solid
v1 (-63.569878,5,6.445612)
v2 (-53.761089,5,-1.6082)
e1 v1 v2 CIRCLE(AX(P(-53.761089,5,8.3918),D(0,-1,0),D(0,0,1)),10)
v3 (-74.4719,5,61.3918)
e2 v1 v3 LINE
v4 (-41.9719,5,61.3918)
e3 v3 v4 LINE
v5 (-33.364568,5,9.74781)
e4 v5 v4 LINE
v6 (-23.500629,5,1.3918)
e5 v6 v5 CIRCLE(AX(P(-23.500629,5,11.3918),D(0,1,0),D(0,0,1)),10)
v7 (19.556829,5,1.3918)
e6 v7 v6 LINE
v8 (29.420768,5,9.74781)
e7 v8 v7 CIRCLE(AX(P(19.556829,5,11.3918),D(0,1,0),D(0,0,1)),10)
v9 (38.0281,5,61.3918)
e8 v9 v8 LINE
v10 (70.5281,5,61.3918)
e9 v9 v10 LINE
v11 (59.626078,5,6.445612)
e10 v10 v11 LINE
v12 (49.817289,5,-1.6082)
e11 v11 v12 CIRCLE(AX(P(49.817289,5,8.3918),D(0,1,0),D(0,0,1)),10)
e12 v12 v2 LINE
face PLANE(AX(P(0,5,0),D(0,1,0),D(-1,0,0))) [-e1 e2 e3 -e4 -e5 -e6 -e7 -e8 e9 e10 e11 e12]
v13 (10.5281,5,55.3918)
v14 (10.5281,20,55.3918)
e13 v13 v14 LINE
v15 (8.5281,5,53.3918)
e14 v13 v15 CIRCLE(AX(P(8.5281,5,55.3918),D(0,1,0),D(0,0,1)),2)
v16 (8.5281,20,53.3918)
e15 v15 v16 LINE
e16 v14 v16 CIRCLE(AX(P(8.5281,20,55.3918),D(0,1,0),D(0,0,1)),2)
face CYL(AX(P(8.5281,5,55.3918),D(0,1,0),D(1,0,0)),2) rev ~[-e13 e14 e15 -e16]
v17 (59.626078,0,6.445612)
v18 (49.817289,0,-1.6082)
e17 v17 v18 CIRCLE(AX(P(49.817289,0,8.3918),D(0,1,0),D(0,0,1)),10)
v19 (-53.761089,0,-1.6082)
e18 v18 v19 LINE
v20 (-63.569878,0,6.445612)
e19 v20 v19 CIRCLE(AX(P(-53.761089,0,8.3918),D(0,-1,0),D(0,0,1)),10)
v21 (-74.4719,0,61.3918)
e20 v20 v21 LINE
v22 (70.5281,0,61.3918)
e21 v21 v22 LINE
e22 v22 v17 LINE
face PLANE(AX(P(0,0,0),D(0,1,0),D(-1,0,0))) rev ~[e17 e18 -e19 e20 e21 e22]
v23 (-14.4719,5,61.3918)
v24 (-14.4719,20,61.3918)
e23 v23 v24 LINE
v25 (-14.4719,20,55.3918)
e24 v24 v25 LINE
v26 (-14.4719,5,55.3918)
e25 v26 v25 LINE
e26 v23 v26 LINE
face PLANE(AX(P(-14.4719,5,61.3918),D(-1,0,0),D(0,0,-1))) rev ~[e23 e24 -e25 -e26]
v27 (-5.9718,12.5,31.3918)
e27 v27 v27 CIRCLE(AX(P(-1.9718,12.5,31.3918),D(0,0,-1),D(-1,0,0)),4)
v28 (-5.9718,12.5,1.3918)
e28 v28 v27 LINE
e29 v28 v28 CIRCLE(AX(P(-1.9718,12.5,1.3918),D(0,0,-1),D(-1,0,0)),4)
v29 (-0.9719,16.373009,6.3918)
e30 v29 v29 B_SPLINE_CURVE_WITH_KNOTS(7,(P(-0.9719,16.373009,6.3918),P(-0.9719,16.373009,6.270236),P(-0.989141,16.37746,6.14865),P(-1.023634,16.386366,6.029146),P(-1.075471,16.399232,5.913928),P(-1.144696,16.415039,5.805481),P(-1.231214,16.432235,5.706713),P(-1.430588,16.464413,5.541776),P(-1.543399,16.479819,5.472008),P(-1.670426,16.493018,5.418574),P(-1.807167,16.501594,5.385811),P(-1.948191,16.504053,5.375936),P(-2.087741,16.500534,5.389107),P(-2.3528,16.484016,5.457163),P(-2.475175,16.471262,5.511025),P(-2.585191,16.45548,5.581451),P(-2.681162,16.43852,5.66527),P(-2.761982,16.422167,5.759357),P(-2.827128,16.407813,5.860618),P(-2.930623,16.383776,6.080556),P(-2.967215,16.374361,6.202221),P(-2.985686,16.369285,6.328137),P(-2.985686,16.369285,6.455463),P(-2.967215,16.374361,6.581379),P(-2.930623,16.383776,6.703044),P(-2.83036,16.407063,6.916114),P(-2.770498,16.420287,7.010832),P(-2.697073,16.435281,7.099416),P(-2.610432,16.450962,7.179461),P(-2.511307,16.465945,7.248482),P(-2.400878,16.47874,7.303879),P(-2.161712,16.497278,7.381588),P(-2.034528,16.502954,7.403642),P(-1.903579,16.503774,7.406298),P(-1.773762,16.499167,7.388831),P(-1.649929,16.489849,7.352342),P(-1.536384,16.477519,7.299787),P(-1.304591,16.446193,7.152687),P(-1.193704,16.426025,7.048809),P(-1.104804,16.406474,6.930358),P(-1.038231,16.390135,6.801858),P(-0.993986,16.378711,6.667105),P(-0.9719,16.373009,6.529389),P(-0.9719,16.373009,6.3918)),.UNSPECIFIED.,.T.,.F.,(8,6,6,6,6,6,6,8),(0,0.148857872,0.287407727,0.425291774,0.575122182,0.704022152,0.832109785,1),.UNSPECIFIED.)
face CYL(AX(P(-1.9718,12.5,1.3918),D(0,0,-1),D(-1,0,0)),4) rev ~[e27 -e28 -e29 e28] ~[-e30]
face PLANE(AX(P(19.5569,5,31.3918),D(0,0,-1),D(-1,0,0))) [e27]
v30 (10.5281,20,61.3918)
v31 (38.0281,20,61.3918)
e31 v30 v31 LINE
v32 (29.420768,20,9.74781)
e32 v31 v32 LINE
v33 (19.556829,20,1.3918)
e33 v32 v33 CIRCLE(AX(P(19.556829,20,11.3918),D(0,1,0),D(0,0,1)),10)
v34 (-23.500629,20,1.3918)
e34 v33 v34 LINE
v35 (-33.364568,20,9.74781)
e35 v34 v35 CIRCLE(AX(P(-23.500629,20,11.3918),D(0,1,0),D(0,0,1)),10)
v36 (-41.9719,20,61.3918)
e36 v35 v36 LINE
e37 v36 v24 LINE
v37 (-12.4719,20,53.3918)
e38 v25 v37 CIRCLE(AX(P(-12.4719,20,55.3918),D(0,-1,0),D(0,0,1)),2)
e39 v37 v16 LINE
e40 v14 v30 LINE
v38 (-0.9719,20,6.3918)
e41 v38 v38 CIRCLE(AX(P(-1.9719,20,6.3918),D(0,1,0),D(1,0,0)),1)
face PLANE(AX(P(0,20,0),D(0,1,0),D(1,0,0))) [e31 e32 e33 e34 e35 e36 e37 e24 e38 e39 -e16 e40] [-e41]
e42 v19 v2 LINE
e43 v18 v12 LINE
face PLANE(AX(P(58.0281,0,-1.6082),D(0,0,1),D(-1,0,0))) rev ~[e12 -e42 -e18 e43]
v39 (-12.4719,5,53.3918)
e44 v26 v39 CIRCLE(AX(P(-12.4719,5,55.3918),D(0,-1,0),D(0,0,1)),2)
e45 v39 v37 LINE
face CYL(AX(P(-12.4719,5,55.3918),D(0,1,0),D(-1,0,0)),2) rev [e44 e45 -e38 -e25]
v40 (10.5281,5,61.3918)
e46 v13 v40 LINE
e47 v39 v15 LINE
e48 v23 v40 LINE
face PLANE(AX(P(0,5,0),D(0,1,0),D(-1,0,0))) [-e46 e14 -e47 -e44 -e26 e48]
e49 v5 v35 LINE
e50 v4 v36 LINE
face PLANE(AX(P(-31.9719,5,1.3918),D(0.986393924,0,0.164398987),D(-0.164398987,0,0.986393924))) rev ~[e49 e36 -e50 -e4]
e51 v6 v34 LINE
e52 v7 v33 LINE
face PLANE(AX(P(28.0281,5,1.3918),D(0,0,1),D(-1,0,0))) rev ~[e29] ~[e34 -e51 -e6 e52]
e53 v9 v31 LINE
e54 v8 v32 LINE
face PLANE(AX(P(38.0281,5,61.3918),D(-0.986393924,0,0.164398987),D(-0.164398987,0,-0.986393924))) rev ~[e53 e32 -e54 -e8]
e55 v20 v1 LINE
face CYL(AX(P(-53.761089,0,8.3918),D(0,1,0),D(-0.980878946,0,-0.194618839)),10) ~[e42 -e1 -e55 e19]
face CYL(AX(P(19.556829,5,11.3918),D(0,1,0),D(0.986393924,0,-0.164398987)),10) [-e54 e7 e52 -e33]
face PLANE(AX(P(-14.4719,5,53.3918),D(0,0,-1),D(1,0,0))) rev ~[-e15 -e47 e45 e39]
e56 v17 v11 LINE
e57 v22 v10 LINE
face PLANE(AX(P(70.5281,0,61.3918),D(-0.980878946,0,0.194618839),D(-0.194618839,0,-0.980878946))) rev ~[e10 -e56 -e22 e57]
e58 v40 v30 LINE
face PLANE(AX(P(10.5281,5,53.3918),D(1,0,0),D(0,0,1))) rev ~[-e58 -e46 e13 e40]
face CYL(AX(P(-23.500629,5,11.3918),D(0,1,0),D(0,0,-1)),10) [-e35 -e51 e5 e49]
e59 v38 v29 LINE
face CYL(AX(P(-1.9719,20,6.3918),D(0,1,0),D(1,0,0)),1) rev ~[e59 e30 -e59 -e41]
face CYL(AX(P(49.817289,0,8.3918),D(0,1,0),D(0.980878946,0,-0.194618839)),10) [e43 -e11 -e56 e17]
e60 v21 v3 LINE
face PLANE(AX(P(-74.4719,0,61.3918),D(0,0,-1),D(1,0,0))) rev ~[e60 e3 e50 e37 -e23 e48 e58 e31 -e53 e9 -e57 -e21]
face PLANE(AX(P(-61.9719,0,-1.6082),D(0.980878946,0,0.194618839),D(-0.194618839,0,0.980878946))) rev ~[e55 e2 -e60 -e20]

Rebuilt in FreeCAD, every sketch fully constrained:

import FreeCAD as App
import Part
import Sketcher

V = App.Vector


def edges_at(feature, points):
    """Names of the edges that pass closest to the given points."""
    edges = feature.Shape.Edges
    near = lambda p: min(range(len(edges)), key=lambda i: edges[i].distToShape(Part.Vertex(*p))[0])
    return sorted({f"Edge{near(p) + 1}" for p in points})

doc = App.newDocument("Part")
body = doc.addObject("PartDesign::Body", "Body")

sketch1 = body.newObject("Sketcher::SketchObject", "Sketch")
sketch1.AttachmentSupport = (doc.getObject("XZ_Plane"), [""])
sketch1.MapMode = "FlatFace"
sketch1.addGeometry([
    Part.LineSegment(V(-74, 61, 0), V(71, 61, 0)),
    Part.LineSegment(V(71, 61, 0), V(58, -2, 0)),
    Part.LineSegment(V(58, -2, 0), V(-62, -2, 0)),
    Part.LineSegment(V(-62, -2, 0), V(-74, 61, 0)),
], False)
sketch1.addConstraint([
    Sketcher.Constraint("Coincident", 0, 2, 1, 1),
    Sketcher.Constraint("Coincident", 1, 2, 2, 1),
    Sketcher.Constraint("Coincident", 2, 2, 3, 1),
    Sketcher.Constraint("Coincident", 3, 2, 0, 1),
    Sketcher.Constraint("Horizontal", 0),
    Sketcher.Constraint("Horizontal", 2),
    Sketcher.Constraint("Equal", 1, 3),
    Sketcher.Constraint("DistanceX", 0, 1, 0, 2, 145.0),
    Sketcher.Constraint("DistanceX", 2, 2, 2, 1, 120.0),
    Sketcher.Constraint("DistanceY", 1, 2, 0, 2, 63.0),
    Sketcher.Constraint("DistanceX", -1, 1, 0, 2, 70.528),
    Sketcher.Constraint("DistanceY", -1, 1, 0, 2, 61.3918),
])
pad1 = body.newObject("PartDesign::Pad", "Pad")
pad1.Profile = sketch1
pad1.Length = 5
pad1.Reversed = True

sketch2 = body.newObject("Sketcher::SketchObject", "Sketch001")
sketch2.AttachmentSupport = (doc.getObject("XZ_Plane"), [""])
sketch2.MapMode = "FlatFace"
sketch2.AttachmentOffset = App.Placement(V(0, 0, -5), App.Rotation())
sketch2.addGeometry([
    Part.LineSegment(V(-32, 1, 0), V(-42, 61, 0)),
    Part.LineSegment(V(-42, 61, 0), V(-14, 61, 0)),
    Part.LineSegment(V(-14, 61, 0), V(-14, 53, 0)),
    Part.LineSegment(V(-14, 53, 0), V(11, 53, 0)),
    Part.LineSegment(V(11, 53, 0), V(11, 61, 0)),
    Part.LineSegment(V(11, 61, 0), V(38, 61, 0)),
    Part.LineSegment(V(38, 61, 0), V(28, 1, 0)),
    Part.LineSegment(V(28, 1, 0), V(-32, 1, 0)),
], False)
sketch2.addConstraint([
    Sketcher.Constraint("Coincident", 0, 2, 1, 1),
    Sketcher.Constraint("Coincident", 1, 2, 2, 1),
    Sketcher.Constraint("Coincident", 2, 2, 3, 1),
    Sketcher.Constraint("Coincident", 3, 2, 4, 1),
    Sketcher.Constraint("Coincident", 4, 2, 5, 1),
    Sketcher.Constraint("Coincident", 5, 2, 6, 1),
    Sketcher.Constraint("Coincident", 6, 2, 7, 1),
    Sketcher.Constraint("Coincident", 7, 2, 0, 1),
    Sketcher.Constraint("Horizontal", 1),
    Sketcher.Constraint("Vertical", 2),
    Sketcher.Constraint("Horizontal", 3),
    Sketcher.Constraint("Vertical", 4),
    Sketcher.Constraint("Horizontal", 5),
    Sketcher.Constraint("Horizontal", 7),
    Sketcher.Constraint("Horizontal", 1, 2, 4, 2),
    Sketcher.Constraint("Equal", 1, 5),
    Sketcher.Constraint("Equal", 0, 6),
    Sketcher.Constraint("DistanceX", 3, 1, 3, 2, 25.0),
    Sketcher.Constraint("DistanceX", 7, 2, 7, 1, 60.0),
    Sketcher.Constraint("DistanceY", 2, 2, 2, 1, 8.0),
    Sketcher.Constraint("DistanceX", 1, 1, 1, 2, 27.5),
    Sketcher.Constraint("DistanceY", 6, 2, 5, 2, 60.0),
    Sketcher.Constraint("DistanceX", 0, 2, -1, 1, 41.972),
    Sketcher.Constraint("DistanceY", -1, 1, 0, 2, 61.3918),
])
pad2 = body.newObject("PartDesign::Pad", "Pad001")
pad2.Profile = sketch2
pad2.Length = 15
pad2.Reversed = True
doc.recompute()

fillet = body.newObject("PartDesign::Fillet", "Fillet")
fillet.Base = (pad2, edges_at(pad2, [
    (58.028, 2.5, -1.608),
    (-61.972, 2.5, -1.608),
    (-31.972, 12.5, 1.392),
    (28.028, 12.5, 1.392),
]))
fillet.Radius = 10
doc.recompute()

fillet2 = body.newObject("PartDesign::Fillet", "Fillet001")
fillet2.Base = (fillet, edges_at(fillet, [(10.528, 12.5, 53.392), (-14.472, 12.5, 53.392)]))
fillet2.Radius = 2

sketch3 = body.newObject("Sketcher::SketchObject", "Sketch002")
sketch3.AttachmentSupport = (doc.getObject("XZ_Plane"), [""])
sketch3.MapMode = "FlatFace"
sketch3.AttachmentOffset = App.Placement(V(0, 0, -20), App.Rotation())
sketch3.addGeometry(Part.Circle(V(-2, 6.4, 0), V(0, 0, 1), 1), False)
sketch3.addConstraint([
    Sketcher.Constraint("Diameter", 0, 2.0),
    Sketcher.Constraint("DistanceX", 0, 3, -1, 1, 1.972),
    Sketcher.Constraint("DistanceY", -1, 1, 0, 3, 6.3918),
])
pocket1 = body.newObject("PartDesign::Pocket", "Pocket")
pocket1.Profile = sketch3
pocket1.Length = 10
pocket1.Reversed = True

sketch4 = body.newObject("Sketcher::SketchObject", "Sketch003")
sketch4.AttachmentSupport = (doc.getObject("XY_Plane"), [""])
sketch4.MapMode = "FlatFace"
sketch4.AttachmentOffset = App.Placement(V(0, 0, 1.3918), App.Rotation())
sketch4.addGeometry(Part.Circle(V(-2, 12.5, 0), V(0, 0, 1), 4), False)
sketch4.addConstraint([
    Sketcher.Constraint("Diameter", 0, 8.0),
    Sketcher.Constraint("DistanceY", -1, 1, 0, 3, 12.5),
    Sketcher.Constraint("DistanceX", 0, 3, -1, 1, 1.9718),
])
pocket2 = body.newObject("PartDesign::Pocket", "Pocket001")
pocket2.Profile = sketch4
pocket2.Length = 30
pocket2.Reversed = True

doc.recompute()
